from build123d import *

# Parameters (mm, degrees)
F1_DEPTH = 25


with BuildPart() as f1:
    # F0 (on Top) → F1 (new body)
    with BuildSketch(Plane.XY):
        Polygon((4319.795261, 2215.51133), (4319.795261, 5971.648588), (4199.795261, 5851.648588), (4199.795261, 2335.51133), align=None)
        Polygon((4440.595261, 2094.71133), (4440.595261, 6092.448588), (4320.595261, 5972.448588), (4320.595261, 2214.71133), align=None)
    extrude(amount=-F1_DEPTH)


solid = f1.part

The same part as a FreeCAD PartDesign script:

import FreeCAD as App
import Part
import Sketcher
from FreeCAD import Vector


def add_polygon(sketch, points):
    """Adds a closed chain of lines whose ends are joined by coincident constraints."""
    first, n = sketch.GeometryCount, len(points)
    for a, b in zip(points, points[1:] + points[:1]):
        sketch.addGeometry(Part.LineSegment(App.Vector(*a, 0), App.Vector(*b, 0)), False)
    for i in range(n):
        sketch.addConstraint(Sketcher.Constraint("Coincident", first + i, 2, first + (i + 1) % n, 1))

doc = App.newDocument("Part")
params = doc.addObject("Spreadsheet::Sheet", "Params")
for row, (alias, value) in enumerate([
    ("pad1_length", "25 mm"),
], start=1):
    params.set(f"A{row}", alias)
    params.set(f"B{row}", "=" + value)
    params.setAlias(f"B{row}", alias)

body = doc.addObject("PartDesign::Body", "Body")
body.AllowCompound = True

# Sketch on XY plane
sketch1 = body.newObject("Sketcher::SketchObject", "Sketch")
sketch1.AttachmentSupport = (doc.getObject("XY_Plane"), [""])
sketch1.MapMode = "FlatFace"
add_polygon(sketch1, [(4320, 2216), (4320, 5972), (4200, 5852), (4200, 2336)])  # lines 0-3
add_polygon(sketch1, [(4441, 2095), (4441, 6092), (4321, 5972), (4321, 2215)])  # lines 4-7
sketch1.addConstraint([
    Sketcher.Constraint("Vertical", 0),
    Sketcher.Constraint("Vertical", 2),
    Sketcher.Constraint("Vertical", 4),
    Sketcher.Constraint("Vertical", 6),
    Sketcher.Constraint("Perpendicular", 1, 3),
    Sketcher.Constraint("Perpendicular", 3, 5),
    Sketcher.Constraint("Perpendicular", 5, 7),
    Sketcher.Constraint("Equal", 1, 3),
    Sketcher.Constraint("Equal", 3, 5),
    Sketcher.Constraint("DistanceX", 1, 2, 0, 2, 120.0),
    Sketcher.Constraint("DistanceX", 0, 2, 4, 2, 120.8),
    Sketcher.Constraint("DistanceY", 0, 2, 4, 2, 120.8),
    Sketcher.Constraint("DistanceY", 6, 2, 3, 2, 0.8),
    Sketcher.Constraint("DistanceY", 0, 1, 0, 2, 3756.137258),
    Sketcher.Constraint("DistanceX", -1, 1, 0, 2, 4319.795261),
    Sketcher.Constraint("DistanceY", -1, 1, 0, 2, 5971.648588),
])
pad1 = body.newObject("PartDesign::Pad", "Pad")
pad1.Profile = sketch1
pad1.setExpression("Length", "Params.pad1_length")
pad1.Reversed = True

doc.recompute()
